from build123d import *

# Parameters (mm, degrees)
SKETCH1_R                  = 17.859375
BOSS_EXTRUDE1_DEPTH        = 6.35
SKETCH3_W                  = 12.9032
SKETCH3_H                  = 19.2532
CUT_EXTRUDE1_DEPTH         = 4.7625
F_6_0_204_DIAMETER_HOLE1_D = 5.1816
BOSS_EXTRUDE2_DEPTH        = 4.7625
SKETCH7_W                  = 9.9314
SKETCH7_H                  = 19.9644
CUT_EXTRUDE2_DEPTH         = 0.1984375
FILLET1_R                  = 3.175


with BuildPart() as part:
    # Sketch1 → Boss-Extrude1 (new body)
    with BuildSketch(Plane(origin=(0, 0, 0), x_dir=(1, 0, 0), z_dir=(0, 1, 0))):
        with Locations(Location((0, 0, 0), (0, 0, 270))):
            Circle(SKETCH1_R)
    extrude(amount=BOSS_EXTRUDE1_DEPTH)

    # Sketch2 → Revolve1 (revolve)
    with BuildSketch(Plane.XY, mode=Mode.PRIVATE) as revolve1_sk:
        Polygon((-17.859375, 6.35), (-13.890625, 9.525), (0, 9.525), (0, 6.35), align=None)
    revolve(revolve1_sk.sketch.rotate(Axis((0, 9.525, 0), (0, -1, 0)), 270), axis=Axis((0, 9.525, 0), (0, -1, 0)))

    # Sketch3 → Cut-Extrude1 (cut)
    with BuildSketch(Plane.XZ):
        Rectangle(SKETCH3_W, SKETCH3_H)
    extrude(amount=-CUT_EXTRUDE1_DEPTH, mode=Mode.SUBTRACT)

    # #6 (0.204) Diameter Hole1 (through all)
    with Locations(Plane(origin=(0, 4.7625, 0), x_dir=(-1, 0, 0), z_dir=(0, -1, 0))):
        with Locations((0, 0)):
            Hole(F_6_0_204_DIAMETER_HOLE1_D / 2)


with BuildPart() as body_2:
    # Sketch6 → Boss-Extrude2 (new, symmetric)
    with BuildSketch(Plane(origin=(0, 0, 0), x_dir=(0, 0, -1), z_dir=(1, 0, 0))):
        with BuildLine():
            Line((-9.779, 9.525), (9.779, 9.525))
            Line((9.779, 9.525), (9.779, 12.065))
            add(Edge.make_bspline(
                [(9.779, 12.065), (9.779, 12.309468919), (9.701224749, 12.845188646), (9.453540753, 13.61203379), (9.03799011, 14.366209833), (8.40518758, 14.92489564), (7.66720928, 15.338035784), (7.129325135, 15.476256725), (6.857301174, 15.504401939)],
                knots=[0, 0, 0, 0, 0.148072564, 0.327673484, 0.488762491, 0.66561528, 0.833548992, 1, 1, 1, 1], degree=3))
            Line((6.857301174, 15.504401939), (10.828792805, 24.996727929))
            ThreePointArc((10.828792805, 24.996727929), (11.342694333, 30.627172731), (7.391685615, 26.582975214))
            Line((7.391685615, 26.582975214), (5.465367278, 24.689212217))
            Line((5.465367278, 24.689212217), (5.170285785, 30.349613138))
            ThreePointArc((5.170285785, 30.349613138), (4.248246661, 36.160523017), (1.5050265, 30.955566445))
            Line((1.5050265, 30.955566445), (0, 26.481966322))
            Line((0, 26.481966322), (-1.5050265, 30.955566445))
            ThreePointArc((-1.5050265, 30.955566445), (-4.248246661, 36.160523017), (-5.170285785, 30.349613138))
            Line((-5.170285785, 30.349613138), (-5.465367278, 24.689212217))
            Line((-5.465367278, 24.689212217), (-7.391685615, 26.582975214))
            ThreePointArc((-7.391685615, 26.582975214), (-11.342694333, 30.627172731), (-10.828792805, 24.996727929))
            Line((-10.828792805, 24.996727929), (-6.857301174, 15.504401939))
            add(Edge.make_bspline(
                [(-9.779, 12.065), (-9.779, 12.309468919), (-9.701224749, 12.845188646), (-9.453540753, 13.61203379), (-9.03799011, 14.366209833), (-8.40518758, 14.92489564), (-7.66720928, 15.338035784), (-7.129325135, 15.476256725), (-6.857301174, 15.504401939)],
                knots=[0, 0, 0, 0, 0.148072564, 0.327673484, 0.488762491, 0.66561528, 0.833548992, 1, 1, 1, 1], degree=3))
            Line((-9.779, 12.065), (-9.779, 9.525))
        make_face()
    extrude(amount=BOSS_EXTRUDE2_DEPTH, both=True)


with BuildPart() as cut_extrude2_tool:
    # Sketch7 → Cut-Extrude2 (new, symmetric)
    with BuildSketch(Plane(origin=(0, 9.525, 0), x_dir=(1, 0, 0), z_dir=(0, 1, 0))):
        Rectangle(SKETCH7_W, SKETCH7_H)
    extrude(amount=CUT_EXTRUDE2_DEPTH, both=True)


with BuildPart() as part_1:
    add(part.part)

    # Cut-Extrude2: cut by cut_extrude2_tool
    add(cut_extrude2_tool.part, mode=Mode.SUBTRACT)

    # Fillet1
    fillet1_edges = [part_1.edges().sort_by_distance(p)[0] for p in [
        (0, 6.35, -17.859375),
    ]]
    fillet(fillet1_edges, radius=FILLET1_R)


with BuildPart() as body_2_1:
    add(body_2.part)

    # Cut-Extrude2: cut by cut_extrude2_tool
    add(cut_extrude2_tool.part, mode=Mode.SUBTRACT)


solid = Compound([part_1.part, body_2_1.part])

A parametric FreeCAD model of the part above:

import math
import FreeCAD as App
import Part
import Sketcher
from FreeCAD import Vector
Q = App.Units.Quantity


def edges_at(feature, points):
    """Names of the edges that pass closest to the given points."""
    edges = feature.Shape.Edges
    near = lambda p: min(range(len(edges)), key=lambda i: edges[i].distToShape(Part.Vertex(*p))[0])
    return sorted({f"Edge{near(p) + 1}" for p in points})

doc = App.newDocument("Part")
body = doc.addObject("PartDesign::Body", "Body")

# Sketch on XZ plane
sketch1 = body.newObject("Sketcher::SketchObject", "Sketch")
sketch1.AttachmentSupport = (doc.getObject("XZ_Plane"), [""])
sketch1.MapMode = "FlatFace"
sketch1.addGeometry(Part.Circle(Vector(0, 0, 0), Vector(0, 0, 1), 17.859375), False)
sketch1.addConstraint(Sketcher.Constraint("Coincident", 0, 3, -1, 1))
sketch1.addConstraint(Sketcher.Constraint("Diameter", 0, Q("1.40625 in")))
pad1 = body.newObject("PartDesign::Pad", "Pad")
pad1.Profile = sketch1
pad1.Length = Q("0.25 in")
pad1.Reversed = True

# Sketch on XY plane
sketch2 = body.newObject("Sketcher::SketchObject", "Sketch001")
sketch2.AttachmentSupport = (doc.getObject("XY_Plane"), [""])
sketch2.MapMode = "FlatFace"
sketch2.addGeometry(Part.LineSegment(Vector(-13.890625, 9.525, 0), Vector(-17.859375, 6.35, 0)), False)
sketch2.addGeometry(Part.LineSegment(Vector(-17.859375, 6.35, 0), Vector(0, 6.35, 0)), False)
sketch2.addGeometry(Part.LineSegment(Vector(0, 6.35, 0), Vector(0, 9.525, 0)), False)
sketch2.addGeometry(Part.LineSegment(Vector(0, 9.525, 0), Vector(-13.890625, 9.525, 0)), False)
sketch2.addConstraint(Sketcher.Constraint("Coincident", 0, 2, 1, 1))
sketch2.addConstraint(Sketcher.Constraint("Coincident", 1, 2, 2, 1))
sketch2.addConstraint(Sketcher.Constraint("Coincident", 2, 2, 3, 1))
sketch2.addConstraint(Sketcher.Constraint("Coincident", 3, 2, 0, 1))
sketch2.addConstraint(Sketcher.Constraint("Horizontal", 1))
sketch2.addConstraint(Sketcher.Constraint("Vertical", 2))
sketch2.addConstraint(Sketcher.Constraint("Horizontal", 3))
sketch2.addConstraint(Sketcher.Constraint("PointOnObject", 1, 2, -2))
sketch2.addConstraint(Sketcher.Constraint("DistanceX", 1, 1, 1, 2, Q("0.703125 in")))
sketch2.addConstraint(Sketcher.Constraint("DistanceX", 3, 2, 3, 1, Q("0.546875 in")))
sketch2.addConstraint(Sketcher.Constraint("DistanceY", 2, 1, 2, 2, Q("0.125 in")))
sketch2.addConstraint(Sketcher.Constraint("DistanceY", -1, 1, 0, 2, Q("0.25 in")))
revolution = body.newObject("PartDesign::Revolution", "Revolution")
revolution.Profile = sketch2
revolution.ReferenceAxis = (sketch2, ["V_Axis"])
revolution.Angle = 360

# Sketch on XZ plane
sketch3 = body.newObject("Sketcher::SketchObject", "Sketch002")
sketch3.AttachmentSupport = (doc.getObject("XZ_Plane"), [""])
sketch3.MapMode = "FlatFace"
sketch3.addGeometry(Part.LineSegment(Vector(-6.4516, 9.6266, 0), Vector(-6.4516, -9.6266, 0)), False)
sketch3.addGeometry(Part.LineSegment(Vector(-6.4516, -9.6266, 0), Vector(6.4516, -9.6266, 0)), False)
sketch3.addGeometry(Part.LineSegment(Vector(6.4516, -9.6266, 0), Vector(6.4516, 9.6266, 0)), False)
sketch3.addGeometry(Part.LineSegment(Vector(6.4516, 9.6266, 0), Vector(-6.4516, 9.6266, 0)), False)
sketch3.addConstraint(Sketcher.Constraint("Coincident", 0, 2, 1, 1))
sketch3.addConstraint(Sketcher.Constraint("Coincident", 1, 2, 2, 1))
sketch3.addConstraint(Sketcher.Constraint("Coincident", 2, 2, 3, 1))
sketch3.addConstraint(Sketcher.Constraint("Coincident", 3, 2, 0, 1))
sketch3.addConstraint(Sketcher.Constraint("Vertical", 0))
sketch3.addConstraint(Sketcher.Constraint("Horizontal", 1))
sketch3.addConstraint(Sketcher.Constraint("Vertical", 2))
sketch3.addConstraint(Sketcher.Constraint("Horizontal", 3))
sketch3.addConstraint(Sketcher.Constraint("Symmetric", 0, 2, 2, 2, -1, 1))
sketch3.addConstraint(Sketcher.Constraint("DistanceX", 1, 1, 1, 2, Q("0.508 in")))
sketch3.addConstraint(Sketcher.Constraint("DistanceY", 0, 2, 0, 1, Q("0.758 in")))
pocket1 = body.newObject("PartDesign::Pocket", "Pocket")
pocket1.Profile = sketch3
pocket1.Length = Q("0.1875 in")

# Sketch on XZ plane
sketch4 = body.newObject("Sketcher::SketchObject", "Sketch003")
sketch4.AttachmentSupport = (doc.getObject("XZ_Plane"), [""])
sketch4.MapMode = "FlatFace"
sketch4.AttachmentOffset = App.Placement(Vector(0, 0, -0.1875 * 25.4), App.Rotation())
sketch4.addGeometry(Part.Circle(Vector(0, 0, 0), Vector(0, 0, 1), 2.5908), False)
sketch4.addConstraint(Sketcher.Constraint("Coincident", 0, 3, -1, 1))
sketch4.addConstraint(Sketcher.Constraint("Diameter", 0, Q("0.204 in")))
doc.recompute()
hole = body.newObject("PartDesign::Hole", "Hole")
hole.Profile = sketch4
hole.ThreadType = "None"
hole.Diameter = Q("0.204 in")
hole.DepthType = "ThroughAll"
body2 = doc.addObject("PartDesign::Body", "Body001")

# Sketch on YZ plane
sketch5 = body2.newObject("Sketcher::SketchObject", "Sketch004")
sketch5.AttachmentSupport = (doc.getObject("YZ_Plane001"), [""])
sketch5.MapMode = "FlatFace"
sketch5.addGeometry(Part.LineSegment(Vector(9.525, 9.779, 0), Vector(9.525, -9.779, 0)), False)
sketch5.addGeometry(Part.LineSegment(Vector(9.525, -9.779, 0), Vector(12.065, -9.779, 0)), False)
sketch5.addGeometry(Part.BSplineCurve([Vector(12.065, -9.779, 0), Vector(12.309469, -9.779, 0), Vector(12.845189, -9.701225, 0), Vector(13.612034, -9.453541, 0), Vector(14.36621, -9.03799, 0), Vector(14.924896, -8.405188, 0), Vector(15.338036, -7.667209, 0), Vector(15.476257, -7.129325, 0), Vector(15.504402, -6.857301, 0)], [4, 1, 1, 1, 1, 1, 4], [0, 0.148072564, 0.327673484, 0.488762491, 0.66561528, 0.833548992, 1], False, 3, [1, 1, 1, 1, 1, 1, 1, 1, 1], False), False)
sketch5.addGeometry(Part.LineSegment(Vector(15.504402, -6.857301, 0), Vector(24.996728, -10.828793, 0)), False)
sketch5.addGeometry(Part.ArcOfCircle(Part.Circle(Vector(27.903237, -10.08558, 0), Vector(0, 0, 1), 3.000027), math.radians(-165.656463), math.radians(116.109202)), False)
sketch5.addGeometry(Part.LineSegment(Vector(26.582975, -7.391686, 0), Vector(24.689212, -5.465367, 0)), False)
sketch5.addGeometry(Part.LineSegment(Vector(24.689212, -5.465367, 0), Vector(30.349613, -5.170286, 0)), False)
sketch5.addGeometry(Part.ArcOfCircle(Part.Circle(Vector(33.101675, -3.742547, 0), Vector(0, 0, 1), 3.100368), math.radians(-152.58023), math.radians(133.805379)), False)
sketch5.addGeometry(Part.LineSegment(Vector(30.955566, -1.505027, 0), Vector(26.481966, 0, 0)), False)
sketch5.addGeometry(Part.LineSegment(Vector(26.481966, 0, 0), Vector(30.955566, 1.505027, 0)), False)
sketch5.addGeometry(Part.ArcOfCircle(Part.Circle(Vector(33.101675, 3.742547, 0), Vector(0, 0, 1), 3.100368), math.radians(-133.805379), math.radians(152.58023)), False)
sketch5.addGeometry(Part.LineSegment(Vector(30.349613, 5.170286, 0), Vector(24.689212, 5.465367, 0)), False)
sketch5.addGeometry(Part.LineSegment(Vector(24.689212, 5.465367, 0), Vector(26.582975, 7.391686, 0)), False)
sketch5.addGeometry(Part.ArcOfCircle(Part.Circle(Vector(27.903237, 10.08558, 0), Vector(0, 0, 1), 3.000027), math.radians(-116.109202), math.radians(165.656463)), False)
sketch5.addGeometry(Part.LineSegment(Vector(24.996728, 10.828793, 0), Vector(15.504402, 6.857301, 0)), False)
sketch5.addGeometry(Part.BSplineCurve([Vector(12.065, 9.779, 0), Vector(12.309469, 9.779, 0), Vector(12.845189, 9.701225, 0), Vector(13.612034, 9.453541, 0), Vector(14.36621, 9.03799, 0), Vector(14.924896, 8.405188, 0), Vector(15.338036, 7.667209, 0), Vector(15.476257, 7.129325, 0), Vector(15.504402, 6.857301, 0)], [4, 1, 1, 1, 1, 1, 4], [0, 0.148072564, 0.327673484, 0.488762491, 0.66561528, 0.833548992, 1], False, 3, [1, 1, 1, 1, 1, 1, 1, 1, 1], False), False)
sketch5.addGeometry(Part.LineSegment(Vector(12.065, 9.779, 0), Vector(9.525, 9.779, 0)), False)
sketch5.addConstraint(Sketcher.Constraint("Block", 2))
sketch5.addConstraint(Sketcher.Constraint("Block", 15))
sketch5.addConstraint(Sketcher.Constraint("Coincident", 0, 2, 1, 1))
sketch5.addConstraint(Sketcher.Constraint("Coincident", 1, 2, 2, 1))
sketch5.addConstraint(Sketcher.Constraint("Coincident", 2, 2, 3, 1))
sketch5.addConstraint(Sketcher.Constraint("Coincident", 3, 2, 4, 1))
sketch5.addConstraint(Sketcher.Constraint("Coincident", 4, 2, 5, 1))
sketch5.addConstraint(Sketcher.Constraint("Coincident", 5, 2, 6, 1))
sketch5.addConstraint(Sketcher.Constraint("Coincident", 6, 2, 7, 1))
sketch5.addConstraint(Sketcher.Constraint("Coincident", 7, 2, 8, 1))
sketch5.addConstraint(Sketcher.Constraint("Coincident", 8, 2, 9, 1))
sketch5.addConstraint(Sketcher.Constraint("Coincident", 9, 2, 10, 1))
sketch5.addConstraint(Sketcher.Constraint("Coincident", 10, 2, 11, 1))
sketch5.addConstraint(Sketcher.Constraint("Coincident", 11, 2, 12, 1))
sketch5.addConstraint(Sketcher.Constraint("Coincident", 12, 2, 13, 1))
sketch5.addConstraint(Sketcher.Constraint("Coincident", 13, 2, 14, 1))
sketch5.addConstraint(Sketcher.Constraint("Coincident", 14, 2, 15, 2))
sketch5.addConstraint(Sketcher.Constraint("Coincident", 15, 1, 16, 1))
sketch5.addConstraint(Sketcher.Constraint("Coincident", 16, 2, 0, 1))
sketch5.addConstraint(Sketcher.Constraint("Vertical", 0))
sketch5.addConstraint(Sketcher.Constraint("Horizontal", 1))
sketch5.addConstraint(Sketcher.Constraint("Horizontal", 16))
sketch5.addConstraint(Sketcher.Constraint("Equal", 7, 10))
sketch5.addConstraint(Sketcher.Constraint("Equal", 4, 13))
sketch5.addConstraint(Sketcher.Constraint("Symmetric", 7, 3, 10, 3, -1))
sketch5.addConstraint(Sketcher.Constraint("Symmetric", 4, 3, 13, 3, -1))
sketch5.addConstraint(Sketcher.Constraint("Symmetric", 5, 2, 11, 2, -1))
sketch5.addConstraint(Sketcher.Constraint("PointOnObject", 8, 2, -1))
sketch5.addConstraint(Sketcher.Constraint("Vertical", 7, 2, 9, 2))
sketch5.addConstraint(Sketcher.Constraint("Vertical", 6, 2, 10, 2))
sketch5.addConstraint(Sketcher.Constraint("Vertical", 4, 2, 12, 2))
sketch5.addConstraint(Sketcher.Constraint("Vertical", 3, 2, 13, 2))
sketch5.addConstraint(Sketcher.Constraint("DistanceX", 1, 1, 1, 2, Q("0.1 in")))
sketch5.addConstraint(Sketcher.Constraint("Radius", 7, 3.100368))
sketch5.addConstraint(Sketcher.Constraint("Radius", 4, 3.000027))
sketch5.addConstraint(Sketcher.Constraint("DistanceX", 4, 2, 7, 3, 6.5187))
sketch5.addConstraint(Sketcher.Constraint("DistanceY", 4, 2, 6, 2, 2.2214))
sketch5.addConstraint(Sketcher.Constraint("DistanceX", 5, 2, 6, 2, 5.660401))
sketch5.addConstraint(Sketcher.Constraint("DistanceX", 8, 2, 7, 2, 4.4736))
sketch5.addConstraint(Sketcher.Constraint("Distance", 8, 4.719979))
sketch5.addConstraint(Sketcher.Constraint("DistanceY", 4, 3, -1, 1, 10.08558))
sketch5.addConstraint(Sketcher.Constraint("DistanceX", 3, 2, 4, 3, 2.906509))
sketch5.addConstraint(Sketcher.Constraint("DistanceY", 3, 2, 10, 3, 14.57134))
sketch5.addConstraint(Sketcher.Constraint("DistanceX", 4, 2, 4, 3, 1.320262))
sketch5.addConstraint(Sketcher.Constraint("DistanceY", 4, 2, 5, 2, 1.926318))
sketch5.addConstraint(Sketcher.Constraint("DistanceX", 14, 2, 11, 2, 9.18481))
pad2 = body2.newObject("PartDesign::Pad", "Pad001")
pad2.Profile = sketch5
pad2.Length = Q("0.375 in")
pad2.Midplane = True
body3 = doc.addObject("PartDesign::Body", "Body002")

# Sketch on XZ plane
sketch6 = body3.newObject("Sketcher::SketchObject", "Sketch005")
sketch6.AttachmentSupport = (doc.getObject("XZ_Plane002"), [""])
sketch6.MapMode = "FlatFace"
sketch6.AttachmentOffset = App.Placement(Vector(0, 0, -0.375 * 25.4), App.Rotation())
sketch6.addGeometry(Part.LineSegment(Vector(-4.9657, -9.9822, 0), Vector(-4.9657, 9.9822, 0)), False)
sketch6.addGeometry(Part.LineSegment(Vector(-4.9657, 9.9822, 0), Vector(4.9657, 9.9822, 0)), False)
sketch6.addGeometry(Part.LineSegment(Vector(4.9657, 9.9822, 0), Vector(4.9657, -9.9822, 0)), False)
sketch6.addGeometry(Part.LineSegment(Vector(4.9657, -9.9822, 0), Vector(-4.9657, -9.9822, 0)), False)
sketch6.addConstraint(Sketcher.Constraint("Coincident", 0, 2, 1, 1))
sketch6.addConstraint(Sketcher.Constraint("Coincident", 1, 2, 2, 1))
sketch6.addConstraint(Sketcher.Constraint("Coincident", 2, 2, 3, 1))
sketch6.addConstraint(Sketcher.Constraint("Coincident", 3, 2, 0, 1))
sketch6.addConstraint(Sketcher.Constraint("Vertical", 0))
sketch6.addConstraint(Sketcher.Constraint("Horizontal", 1))
sketch6.addConstraint(Sketcher.Constraint("Vertical", 2))
sketch6.addConstraint(Sketcher.Constraint("Horizontal", 3))
sketch6.addConstraint(Sketcher.Constraint("Symmetric", 0, 2, 2, 2, -1, 1))
sketch6.addConstraint(Sketcher.Constraint("DistanceX", 1, 1, 1, 2, Q("0.391 in")))
sketch6.addConstraint(Sketcher.Constraint("DistanceY", 0, 1, 0, 2, Q("0.786 in")))
pad3 = body3.newObject("PartDesign::Pad", "Pad002")
pad3.Profile = sketch6
pad3.Length = Q("0.015625 in")
pad3.Midplane = True
doc.recompute()

body4 = doc.addObject("PartDesign::Body", "Body003")
body4.BaseFeature = body3
boolean = body.newObject("PartDesign::Boolean", "Boolean")
boolean.Type = "Cut"
boolean.addObjects([body4])
doc.recompute()

fillet = body.newObject("PartDesign::Fillet", "Fillet")
fillet.Base = (boolean, edges_at(boolean, [(0, 6.35, -17.859)]))
fillet.Radius = Q("0.125 in")
doc.recompute()

boolean2 = body2.newObject("PartDesign::Boolean", "Boolean001")
boolean2.Type = "Cut"
boolean2.addObjects([body3])

doc.recompute()
